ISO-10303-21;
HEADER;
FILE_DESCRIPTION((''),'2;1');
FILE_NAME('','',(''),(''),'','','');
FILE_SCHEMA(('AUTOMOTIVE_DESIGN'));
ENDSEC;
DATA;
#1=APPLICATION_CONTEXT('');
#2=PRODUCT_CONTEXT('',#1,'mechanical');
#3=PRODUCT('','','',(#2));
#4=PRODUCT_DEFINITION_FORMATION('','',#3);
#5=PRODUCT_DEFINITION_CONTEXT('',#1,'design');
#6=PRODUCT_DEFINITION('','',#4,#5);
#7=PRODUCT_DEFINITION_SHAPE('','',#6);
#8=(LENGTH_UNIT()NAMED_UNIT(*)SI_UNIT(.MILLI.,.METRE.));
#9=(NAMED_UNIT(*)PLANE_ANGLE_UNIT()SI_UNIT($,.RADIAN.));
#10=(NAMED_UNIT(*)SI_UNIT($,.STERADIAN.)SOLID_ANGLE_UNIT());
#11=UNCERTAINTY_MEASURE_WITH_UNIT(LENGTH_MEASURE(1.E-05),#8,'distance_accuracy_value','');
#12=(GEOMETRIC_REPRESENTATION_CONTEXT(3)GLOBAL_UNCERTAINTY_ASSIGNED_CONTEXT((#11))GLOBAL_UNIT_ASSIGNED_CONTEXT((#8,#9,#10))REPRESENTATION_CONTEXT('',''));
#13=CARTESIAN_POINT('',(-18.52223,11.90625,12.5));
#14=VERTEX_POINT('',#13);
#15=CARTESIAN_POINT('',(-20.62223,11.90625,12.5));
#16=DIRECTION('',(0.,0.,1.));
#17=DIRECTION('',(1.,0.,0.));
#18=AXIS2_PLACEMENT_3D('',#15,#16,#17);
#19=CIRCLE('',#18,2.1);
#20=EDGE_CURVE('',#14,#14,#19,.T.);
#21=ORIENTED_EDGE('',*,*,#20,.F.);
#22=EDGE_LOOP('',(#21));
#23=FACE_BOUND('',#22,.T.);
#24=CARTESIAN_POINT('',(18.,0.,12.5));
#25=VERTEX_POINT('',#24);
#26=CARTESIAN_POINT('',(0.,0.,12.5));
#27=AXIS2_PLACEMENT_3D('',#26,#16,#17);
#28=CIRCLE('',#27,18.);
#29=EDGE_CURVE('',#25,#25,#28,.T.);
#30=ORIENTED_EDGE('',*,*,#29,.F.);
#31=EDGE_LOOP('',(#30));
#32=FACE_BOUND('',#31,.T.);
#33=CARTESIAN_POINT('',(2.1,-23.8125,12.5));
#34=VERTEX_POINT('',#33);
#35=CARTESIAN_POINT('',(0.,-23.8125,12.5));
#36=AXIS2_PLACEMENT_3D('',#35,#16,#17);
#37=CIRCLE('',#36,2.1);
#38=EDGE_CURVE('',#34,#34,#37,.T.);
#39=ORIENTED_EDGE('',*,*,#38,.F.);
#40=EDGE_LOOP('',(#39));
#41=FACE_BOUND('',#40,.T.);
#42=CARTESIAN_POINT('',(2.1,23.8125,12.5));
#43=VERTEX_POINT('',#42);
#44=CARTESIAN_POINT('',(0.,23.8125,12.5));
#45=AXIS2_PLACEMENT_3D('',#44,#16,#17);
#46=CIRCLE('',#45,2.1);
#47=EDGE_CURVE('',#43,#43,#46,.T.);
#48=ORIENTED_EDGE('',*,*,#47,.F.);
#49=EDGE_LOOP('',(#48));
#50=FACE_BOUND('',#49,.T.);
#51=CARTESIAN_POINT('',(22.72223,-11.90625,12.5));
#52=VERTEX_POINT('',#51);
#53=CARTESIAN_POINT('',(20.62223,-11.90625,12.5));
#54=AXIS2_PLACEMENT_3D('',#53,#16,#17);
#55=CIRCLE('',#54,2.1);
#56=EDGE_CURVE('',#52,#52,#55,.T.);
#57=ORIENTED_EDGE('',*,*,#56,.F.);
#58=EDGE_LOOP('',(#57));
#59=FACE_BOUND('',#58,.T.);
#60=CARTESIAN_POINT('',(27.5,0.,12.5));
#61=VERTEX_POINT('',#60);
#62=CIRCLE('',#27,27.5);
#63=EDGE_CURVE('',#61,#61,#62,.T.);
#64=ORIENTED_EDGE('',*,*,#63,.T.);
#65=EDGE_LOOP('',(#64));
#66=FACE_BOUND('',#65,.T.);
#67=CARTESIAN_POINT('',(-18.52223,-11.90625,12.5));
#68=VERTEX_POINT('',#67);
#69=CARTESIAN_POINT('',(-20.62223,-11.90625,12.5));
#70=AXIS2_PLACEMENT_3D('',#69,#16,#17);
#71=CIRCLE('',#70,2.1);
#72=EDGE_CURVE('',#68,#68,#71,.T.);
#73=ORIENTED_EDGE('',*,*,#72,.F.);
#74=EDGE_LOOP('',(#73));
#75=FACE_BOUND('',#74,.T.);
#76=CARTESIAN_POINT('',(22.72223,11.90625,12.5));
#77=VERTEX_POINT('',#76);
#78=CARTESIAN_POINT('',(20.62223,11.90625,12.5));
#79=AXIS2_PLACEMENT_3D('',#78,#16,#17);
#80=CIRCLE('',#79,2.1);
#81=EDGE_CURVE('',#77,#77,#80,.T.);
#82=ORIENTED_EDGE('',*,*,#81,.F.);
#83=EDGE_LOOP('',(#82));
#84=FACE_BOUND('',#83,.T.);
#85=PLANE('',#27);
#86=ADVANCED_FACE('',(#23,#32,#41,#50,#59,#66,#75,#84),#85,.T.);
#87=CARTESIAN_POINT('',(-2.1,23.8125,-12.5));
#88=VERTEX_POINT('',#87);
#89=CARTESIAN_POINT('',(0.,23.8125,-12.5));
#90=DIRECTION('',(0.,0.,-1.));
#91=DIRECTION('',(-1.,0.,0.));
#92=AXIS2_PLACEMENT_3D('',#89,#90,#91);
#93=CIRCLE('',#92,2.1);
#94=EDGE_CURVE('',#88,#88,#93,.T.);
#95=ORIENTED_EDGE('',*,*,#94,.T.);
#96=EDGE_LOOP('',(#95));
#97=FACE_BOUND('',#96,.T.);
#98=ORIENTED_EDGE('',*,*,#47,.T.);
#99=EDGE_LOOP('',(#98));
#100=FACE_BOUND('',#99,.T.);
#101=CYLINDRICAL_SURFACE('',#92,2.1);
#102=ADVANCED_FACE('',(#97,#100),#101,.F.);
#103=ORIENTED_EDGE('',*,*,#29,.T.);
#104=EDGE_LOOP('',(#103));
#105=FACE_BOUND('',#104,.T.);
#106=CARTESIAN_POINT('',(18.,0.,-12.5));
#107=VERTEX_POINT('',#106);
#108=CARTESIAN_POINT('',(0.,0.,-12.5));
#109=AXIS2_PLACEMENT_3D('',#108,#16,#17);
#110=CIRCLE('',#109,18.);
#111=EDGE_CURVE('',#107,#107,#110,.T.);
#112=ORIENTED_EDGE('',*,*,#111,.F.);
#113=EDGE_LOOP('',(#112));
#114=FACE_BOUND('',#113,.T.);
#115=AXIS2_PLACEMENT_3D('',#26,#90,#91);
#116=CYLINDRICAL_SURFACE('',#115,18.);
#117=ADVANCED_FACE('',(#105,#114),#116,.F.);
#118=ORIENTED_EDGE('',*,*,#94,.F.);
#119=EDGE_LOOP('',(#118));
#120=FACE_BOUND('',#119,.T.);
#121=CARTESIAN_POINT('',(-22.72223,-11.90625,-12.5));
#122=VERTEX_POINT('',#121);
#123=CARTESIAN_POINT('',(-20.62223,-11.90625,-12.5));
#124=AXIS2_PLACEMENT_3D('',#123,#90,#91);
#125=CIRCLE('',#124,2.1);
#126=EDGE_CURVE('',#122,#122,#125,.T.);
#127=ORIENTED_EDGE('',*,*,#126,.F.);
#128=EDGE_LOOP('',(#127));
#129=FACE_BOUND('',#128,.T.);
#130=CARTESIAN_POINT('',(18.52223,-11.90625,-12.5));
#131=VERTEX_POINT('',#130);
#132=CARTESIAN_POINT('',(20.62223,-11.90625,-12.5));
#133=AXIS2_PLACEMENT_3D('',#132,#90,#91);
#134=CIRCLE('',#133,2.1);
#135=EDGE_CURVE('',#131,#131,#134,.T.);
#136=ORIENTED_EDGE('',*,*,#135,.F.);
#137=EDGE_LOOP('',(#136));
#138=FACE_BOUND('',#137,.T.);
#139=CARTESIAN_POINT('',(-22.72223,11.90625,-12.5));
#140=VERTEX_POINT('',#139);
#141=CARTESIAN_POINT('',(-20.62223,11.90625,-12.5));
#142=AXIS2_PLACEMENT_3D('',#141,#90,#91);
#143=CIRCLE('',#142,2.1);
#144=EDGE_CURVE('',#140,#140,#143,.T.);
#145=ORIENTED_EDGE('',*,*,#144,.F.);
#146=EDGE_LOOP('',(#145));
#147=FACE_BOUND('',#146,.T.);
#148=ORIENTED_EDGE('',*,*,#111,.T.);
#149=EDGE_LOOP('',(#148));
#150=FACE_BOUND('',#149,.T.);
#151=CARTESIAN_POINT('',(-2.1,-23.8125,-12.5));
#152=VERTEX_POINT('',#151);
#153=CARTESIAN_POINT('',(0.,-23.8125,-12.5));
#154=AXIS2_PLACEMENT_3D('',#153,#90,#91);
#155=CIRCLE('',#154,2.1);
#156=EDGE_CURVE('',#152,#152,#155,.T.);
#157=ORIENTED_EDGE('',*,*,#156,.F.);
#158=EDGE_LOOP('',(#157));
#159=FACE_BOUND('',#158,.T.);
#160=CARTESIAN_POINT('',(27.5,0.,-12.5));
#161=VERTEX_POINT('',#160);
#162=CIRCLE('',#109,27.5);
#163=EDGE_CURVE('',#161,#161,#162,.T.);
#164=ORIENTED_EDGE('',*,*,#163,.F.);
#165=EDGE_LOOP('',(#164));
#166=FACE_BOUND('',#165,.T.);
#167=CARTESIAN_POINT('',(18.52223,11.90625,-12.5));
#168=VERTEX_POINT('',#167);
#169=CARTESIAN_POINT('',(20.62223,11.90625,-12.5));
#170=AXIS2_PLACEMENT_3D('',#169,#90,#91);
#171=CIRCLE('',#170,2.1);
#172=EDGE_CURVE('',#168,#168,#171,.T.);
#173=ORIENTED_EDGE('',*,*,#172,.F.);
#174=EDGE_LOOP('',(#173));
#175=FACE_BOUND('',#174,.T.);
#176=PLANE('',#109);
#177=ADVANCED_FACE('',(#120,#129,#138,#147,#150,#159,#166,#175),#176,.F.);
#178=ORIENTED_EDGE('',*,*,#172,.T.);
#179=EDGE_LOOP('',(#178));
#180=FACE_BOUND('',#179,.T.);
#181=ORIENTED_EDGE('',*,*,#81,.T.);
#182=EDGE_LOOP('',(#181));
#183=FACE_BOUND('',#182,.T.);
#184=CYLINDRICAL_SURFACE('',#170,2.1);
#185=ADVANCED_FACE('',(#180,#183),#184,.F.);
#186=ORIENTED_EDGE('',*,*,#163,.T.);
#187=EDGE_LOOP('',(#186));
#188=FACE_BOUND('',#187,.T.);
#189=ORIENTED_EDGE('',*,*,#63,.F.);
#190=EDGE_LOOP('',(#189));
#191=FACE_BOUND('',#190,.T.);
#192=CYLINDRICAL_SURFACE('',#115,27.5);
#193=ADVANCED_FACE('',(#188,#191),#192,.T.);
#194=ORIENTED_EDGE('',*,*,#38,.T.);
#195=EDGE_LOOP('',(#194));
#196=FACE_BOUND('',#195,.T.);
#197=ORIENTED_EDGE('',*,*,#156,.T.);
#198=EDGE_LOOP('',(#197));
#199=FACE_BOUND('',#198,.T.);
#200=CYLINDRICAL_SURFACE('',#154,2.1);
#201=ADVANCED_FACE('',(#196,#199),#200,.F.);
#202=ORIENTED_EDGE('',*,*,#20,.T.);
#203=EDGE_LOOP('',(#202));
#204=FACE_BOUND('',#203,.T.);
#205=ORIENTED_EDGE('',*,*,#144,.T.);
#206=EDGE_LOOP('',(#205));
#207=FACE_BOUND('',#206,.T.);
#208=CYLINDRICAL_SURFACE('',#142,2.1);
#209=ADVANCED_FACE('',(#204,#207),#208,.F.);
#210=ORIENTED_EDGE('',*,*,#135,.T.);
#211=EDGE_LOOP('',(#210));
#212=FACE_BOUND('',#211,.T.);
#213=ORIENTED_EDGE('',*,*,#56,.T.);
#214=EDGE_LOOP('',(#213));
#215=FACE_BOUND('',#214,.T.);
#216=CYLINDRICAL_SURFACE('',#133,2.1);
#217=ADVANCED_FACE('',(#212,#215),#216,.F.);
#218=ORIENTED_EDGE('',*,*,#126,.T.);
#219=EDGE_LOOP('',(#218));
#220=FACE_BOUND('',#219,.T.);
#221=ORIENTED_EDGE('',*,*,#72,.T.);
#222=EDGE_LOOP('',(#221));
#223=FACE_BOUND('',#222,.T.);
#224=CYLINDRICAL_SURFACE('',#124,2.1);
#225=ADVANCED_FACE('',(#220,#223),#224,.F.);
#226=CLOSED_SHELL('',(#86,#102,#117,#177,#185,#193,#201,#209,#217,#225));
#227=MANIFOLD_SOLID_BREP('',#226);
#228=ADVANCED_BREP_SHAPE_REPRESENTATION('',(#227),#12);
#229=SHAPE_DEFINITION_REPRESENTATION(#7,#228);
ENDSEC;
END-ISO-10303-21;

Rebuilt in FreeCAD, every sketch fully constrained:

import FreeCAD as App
import Part
import Sketcher

V = App.Vector
Q = App.Units.Quantity

doc = App.newDocument("Part")
params = doc.addObject("Spreadsheet::Sheet", "Params")
for row, (alias, value) in enumerate([
    ("sketch1_diameter", "55 mm"),
    ("sketch1_diameter2", "36 mm"),
    ("pad1_length", "25 mm"),
    ("sketch2_diameter", "4.2 mm"),
    ("hole_diameter", "4.2 mm"),
    ("hole_depth", "25.001 mm"),
], start=1):
    params.set(f"A{row}", alias)
    params.set(f"B{row}", "=" + value)
    params.setAlias(f"B{row}", alias)

body = doc.addObject("PartDesign::Body", "Body")

# Sketch on XY plane
sketch1 = body.newObject("Sketcher::SketchObject", "Sketch")
sketch1.AttachmentSupport = (doc.getObject("XY_Plane"), [""])
sketch1.MapMode = "FlatFace"
sketch1.addGeometry(Part.Circle(V(0, 0, 0), V(0, 0, 1), 28), False)
sketch1.addGeometry(Part.Circle(V(0, 0, 0), V(0, 0, 1), 18), False)
sketch1.addConstraint(Sketcher.Constraint("Coincident", 0, 3, -1, 1))
sketch1.addConstraint(Sketcher.Constraint("Coincident", 1, 3, -1, 1))
sketch1.addConstraint(Sketcher.Constraint("Diameter", 0, Q("55 mm")))
sketch1.addConstraint(Sketcher.Constraint("Diameter", 1, Q("36 mm")))
sketch1.setExpression("Constraints[2]", "Params.sketch1_diameter")
sketch1.setExpression("Constraints[3]", "Params.sketch1_diameter2")
pad1 = body.newObject("PartDesign::Pad", "Pad")
pad1.Profile = sketch1
pad1.setExpression("Length", "Params.pad1_length")
pad1.Midplane = True

# Sketch on XY plane
sketch2 = body.newObject("Sketcher::SketchObject", "Sketch001")
sketch2.AttachmentSupport = (doc.getObject("XY_Plane"), [""])
sketch2.MapMode = "FlatFace"
sketch2.AttachmentOffset = App.Placement(V(0, 0, -12.5), App.Rotation())
sketch2.addGeometry(Part.Circle(V(0, 23.8, 0), V(0, 0, 1), 2.1), False)
sketch2.addConstraint(Sketcher.Constraint("PointOnObject", 0, 3, -2))
sketch2.addConstraint(Sketcher.Constraint("Diameter", 0, Q("4.2 mm")))
sketch2.addConstraint(Sketcher.Constraint("DistanceY", -1, 1, 0, 3, Q("23.8125 mm")))
sketch2.setExpression("Constraints[1]", "Params.sketch2_diameter")
doc.recompute()
hole = body.newObject("PartDesign::Hole", "Hole")
hole.Profile = sketch2
hole.ThreadType = "None"
hole.setExpression("Diameter", "Params.hole_diameter")
hole.DepthType = "Dimension"
hole.setExpression("Depth", "Params.hole_depth")
hole.DrillPoint = "Flat"
hole.Reversed = True
doc.recompute()

polarpattern = body.newObject("PartDesign::PolarPattern", "PolarPattern")
polarpattern.Originals = [hole]
polarpattern.Axis = (doc.getObject("Z_Axis"), [""])
polarpattern.Angle = 360
polarpattern.Occurrences = 6
body.Tip = polarpattern

doc.recompute()
